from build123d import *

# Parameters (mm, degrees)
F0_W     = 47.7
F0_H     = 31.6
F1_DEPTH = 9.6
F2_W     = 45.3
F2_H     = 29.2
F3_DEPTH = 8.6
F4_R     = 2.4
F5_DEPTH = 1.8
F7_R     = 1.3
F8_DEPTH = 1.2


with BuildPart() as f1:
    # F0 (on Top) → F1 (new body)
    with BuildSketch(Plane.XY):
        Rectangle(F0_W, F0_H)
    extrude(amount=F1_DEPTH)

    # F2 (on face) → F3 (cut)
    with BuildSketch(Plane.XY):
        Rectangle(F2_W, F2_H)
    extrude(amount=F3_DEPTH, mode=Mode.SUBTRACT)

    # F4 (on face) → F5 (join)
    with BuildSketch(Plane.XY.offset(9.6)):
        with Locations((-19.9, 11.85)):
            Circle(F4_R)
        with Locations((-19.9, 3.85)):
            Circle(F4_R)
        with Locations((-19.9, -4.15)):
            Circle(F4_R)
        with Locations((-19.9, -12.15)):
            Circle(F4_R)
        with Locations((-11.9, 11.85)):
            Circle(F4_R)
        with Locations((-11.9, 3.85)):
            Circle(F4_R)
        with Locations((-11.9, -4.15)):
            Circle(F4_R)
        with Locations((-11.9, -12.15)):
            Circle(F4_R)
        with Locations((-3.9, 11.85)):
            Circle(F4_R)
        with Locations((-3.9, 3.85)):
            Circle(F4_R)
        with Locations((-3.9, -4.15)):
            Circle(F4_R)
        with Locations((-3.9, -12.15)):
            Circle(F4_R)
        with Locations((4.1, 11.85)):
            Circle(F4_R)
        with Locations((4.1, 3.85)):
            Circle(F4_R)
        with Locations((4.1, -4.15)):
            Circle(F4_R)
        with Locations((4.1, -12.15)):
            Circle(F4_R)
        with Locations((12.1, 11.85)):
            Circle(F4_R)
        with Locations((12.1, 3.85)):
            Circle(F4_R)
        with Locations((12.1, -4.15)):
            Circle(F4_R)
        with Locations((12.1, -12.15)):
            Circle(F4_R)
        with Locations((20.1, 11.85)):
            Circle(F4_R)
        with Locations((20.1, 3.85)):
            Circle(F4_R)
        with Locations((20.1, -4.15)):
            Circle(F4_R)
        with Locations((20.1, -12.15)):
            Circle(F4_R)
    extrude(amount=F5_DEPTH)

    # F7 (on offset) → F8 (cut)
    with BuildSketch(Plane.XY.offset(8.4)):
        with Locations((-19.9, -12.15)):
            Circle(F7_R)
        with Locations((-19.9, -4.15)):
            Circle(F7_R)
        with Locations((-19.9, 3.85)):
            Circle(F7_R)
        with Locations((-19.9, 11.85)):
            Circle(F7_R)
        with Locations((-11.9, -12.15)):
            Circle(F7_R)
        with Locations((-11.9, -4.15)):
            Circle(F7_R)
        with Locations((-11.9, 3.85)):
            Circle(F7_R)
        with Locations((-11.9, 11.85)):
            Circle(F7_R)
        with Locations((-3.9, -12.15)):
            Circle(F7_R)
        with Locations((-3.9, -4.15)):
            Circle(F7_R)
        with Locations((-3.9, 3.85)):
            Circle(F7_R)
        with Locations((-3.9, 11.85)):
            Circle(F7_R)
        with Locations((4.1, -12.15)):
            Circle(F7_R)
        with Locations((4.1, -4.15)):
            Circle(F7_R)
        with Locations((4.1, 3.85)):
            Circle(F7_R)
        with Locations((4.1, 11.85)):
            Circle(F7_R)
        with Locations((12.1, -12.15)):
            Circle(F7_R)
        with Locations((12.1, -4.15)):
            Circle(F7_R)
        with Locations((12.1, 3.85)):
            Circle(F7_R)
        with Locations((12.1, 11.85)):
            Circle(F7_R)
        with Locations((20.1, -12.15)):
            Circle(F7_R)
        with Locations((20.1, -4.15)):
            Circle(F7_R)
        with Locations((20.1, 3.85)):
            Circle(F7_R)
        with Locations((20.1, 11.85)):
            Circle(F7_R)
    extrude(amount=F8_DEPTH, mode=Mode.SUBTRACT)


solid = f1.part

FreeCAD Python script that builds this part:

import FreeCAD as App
import Part
import Sketcher

V = App.Vector

doc = App.newDocument("Part")
body = doc.addObject("PartDesign::Body", "Body")

sketch1 = doc.addObject("Sketcher::SketchObject", "Sketch")
body.addObject(sketch1)
sketch1.AttachmentSupport = (doc.XY_Plane, [""])
sketch1.MapMode = "FlatFace"
sketch1.addGeometry([
    Part.LineSegment(V(-24, 16, 0), V(-24, -16, 0)),
    Part.LineSegment(V(-24, -16, 0), V(24, -16, 0)),
    Part.LineSegment(V(24, -16, 0), V(24, 16, 0)),
    Part.LineSegment(V(24, 16, 0), V(-24, 16, 0)),
], False)
sketch1.addConstraint([
    Sketcher.Constraint("Coincident", 0, 2, 1, 1),
    Sketcher.Constraint("Coincident", 1, 2, 2, 1),
    Sketcher.Constraint("Coincident", 2, 2, 3, 1),
    Sketcher.Constraint("Coincident", 3, 2, 0, 1),
    Sketcher.Constraint("Vertical", 0),
    Sketcher.Constraint("Horizontal", 1),
    Sketcher.Constraint("Vertical", 2),
    Sketcher.Constraint("Horizontal", 3),
    Sketcher.Constraint("Symmetric", 0, 2, 2, 2, -1, 1),
    Sketcher.Constraint("DistanceX", 1, 1, 1, 2, 47.7),
    Sketcher.Constraint("DistanceY", 0, 2, 0, 1, 31.6),
])
pad1 = doc.addObject("PartDesign::Pad", "Pad")
body.addObject(pad1)
pad1.Profile = sketch1
pad1.Length = 9.6

sketch2 = doc.addObject("Sketcher::SketchObject", "Sketch001")
body.addObject(sketch2)
sketch2.AttachmentSupport = (doc.XY_Plane, [""])
sketch2.MapMode = "FlatFace"
sketch2.addGeometry([
    Part.LineSegment(V(-23, 15, 0), V(-23, -15, 0)),
    Part.LineSegment(V(-23, -15, 0), V(23, -15, 0)),
    Part.LineSegment(V(23, -15, 0), V(23, 15, 0)),
    Part.LineSegment(V(23, 15, 0), V(-23, 15, 0)),
], False)
sketch2.addConstraint([
    Sketcher.Constraint("Coincident", 0, 2, 1, 1),
    Sketcher.Constraint("Coincident", 1, 2, 2, 1),
    Sketcher.Constraint("Coincident", 2, 2, 3, 1),
    Sketcher.Constraint("Coincident", 3, 2, 0, 1),
    Sketcher.Constraint("Vertical", 0),
    Sketcher.Constraint("Horizontal", 1),
    Sketcher.Constraint("Vertical", 2),
    Sketcher.Constraint("Horizontal", 3),
    Sketcher.Constraint("Symmetric", 0, 2, 2, 2, -1, 1),
    Sketcher.Constraint("DistanceX", 1, 1, 1, 2, 45.3),
    Sketcher.Constraint("DistanceY", 0, 2, 0, 1, 29.2),
])
pocket1 = doc.addObject("PartDesign::Pocket", "Pocket")
body.addObject(pocket1)
pocket1.Profile = sketch2
pocket1.Length = 8.6
pocket1.Reversed = True

sketch3 = doc.addObject("Sketcher::SketchObject", "Sketch002")
body.addObject(sketch3)
sketch3.AttachmentSupport = (doc.XY_Plane, [""])
sketch3.MapMode = "FlatFace"
sketch3.AttachmentOffset = App.Placement(V(0, 0, 9.6), App.Rotation())
sketch3.addGeometry([
    Part.Circle(V(-19.9, 11.8, 0), V(0, 0, 1), 2.4),
    Part.Circle(V(-19.9, 3.9, 0), V(0, 0, 1), 2.4),
    Part.Circle(V(-19.9, -4.2, 0), V(0, 0, 1), 2.4),
    Part.Circle(V(-19.9, -12.2, 0), V(0, 0, 1), 2.4),
    Part.Circle(V(-11.9, 11.8, 0), V(0, 0, 1), 2.4),
    Part.Circle(V(-11.9, 3.9, 0), V(0, 0, 1), 2.4),
    Part.Circle(V(-11.9, -4.2, 0), V(0, 0, 1), 2.4),
    Part.Circle(V(-11.9, -12.2, 0), V(0, 0, 1), 2.4),
    Part.Circle(V(-3.9, 11.8, 0), V(0, 0, 1), 2.4),
    Part.Circle(V(-3.9, 3.9, 0), V(0, 0, 1), 2.4),
    Part.Circle(V(-3.9, -4.2, 0), V(0, 0, 1), 2.4),
    Part.Circle(V(-3.9, -12.2, 0), V(0, 0, 1), 2.4),
    Part.Circle(V(4.1, 11.8, 0), V(0, 0, 1), 2.4),
    Part.Circle(V(4.1, 3.9, 0), V(0, 0, 1), 2.4),
    Part.Circle(V(4.1, -4.2, 0), V(0, 0, 1), 2.4),
    Part.Circle(V(4.1, -12.2, 0), V(0, 0, 1), 2.4),
    Part.Circle(V(12.1, 11.8, 0), V(0, 0, 1), 2.4),
    Part.Circle(V(12.1, 3.9, 0), V(0, 0, 1), 2.4),
    Part.Circle(V(12.1, -4.2, 0), V(0, 0, 1), 2.4),
    Part.Circle(V(12.1, -12.2, 0), V(0, 0, 1), 2.4),
    Part.Circle(V(20.1, 11.8, 0), V(0, 0, 1), 2.4),
    Part.Circle(V(20.1, 3.9, 0), V(0, 0, 1), 2.4),
    Part.Circle(V(20.1, -4.2, 0), V(0, 0, 1), 2.4),
    Part.Circle(V(20.1, -12.2, 0), V(0, 0, 1), 2.4),
], False)
sketch3.addConstraint([
    Sketcher.Constraint("Equal", 0, 1),
    Sketcher.Constraint("Equal", 1, 2),
    Sketcher.Constraint("Equal", 2, 3),
    Sketcher.Constraint("Equal", 3, 4),
    Sketcher.Constraint("Equal", 4, 5),
    Sketcher.Constraint("Equal", 5, 6),
    Sketcher.Constraint("Equal", 6, 7),
    Sketcher.Constraint("Equal", 7, 8),
    Sketcher.Constraint("Equal", 8, 9),
    Sketcher.Constraint("Equal", 9, 10),
    Sketcher.Constraint("Equal", 10, 11),
    Sketcher.Constraint("Equal", 11, 12),
    Sketcher.Constraint("Equal", 12, 13),
    Sketcher.Constraint("Equal", 13, 14),
    Sketcher.Constraint("Equal", 14, 15),
    Sketcher.Constraint("Equal", 15, 16),
    Sketcher.Constraint("Equal", 16, 17),
    Sketcher.Constraint("Equal", 17, 18),
    Sketcher.Constraint("Equal", 18, 19),
    Sketcher.Constraint("Equal", 19, 20),
    Sketcher.Constraint("Equal", 20, 21),
    Sketcher.Constraint("Equal", 21, 22),
    Sketcher.Constraint("Equal", 22, 23),
    Sketcher.Constraint("Horizontal", 0, 3, 4, 3),
    Sketcher.Constraint("Horizontal", 1, 3, 5, 3),
    Sketcher.Constraint("Horizontal", 2, 3, 6, 3),
    Sketcher.Constraint("Horizontal", 3, 3, 7, 3),
    Sketcher.Constraint("Horizontal", 4, 3, 8, 3),
    Sketcher.Constraint("Horizontal", 5, 3, 9, 3),
    Sketcher.Constraint("Horizontal", 6, 3, 10, 3),
    Sketcher.Constraint("Horizontal", 7, 3, 11, 3),
    Sketcher.Constraint("Horizontal", 8, 3, 12, 3),
    Sketcher.Constraint("Horizontal", 9, 3, 13, 3),
    Sketcher.Constraint("Horizontal", 10, 3, 14, 3),
    Sketcher.Constraint("Horizontal", 11, 3, 15, 3),
    Sketcher.Constraint("Horizontal", 12, 3, 16, 3),
    Sketcher.Constraint("Horizontal", 13, 3, 17, 3),
    Sketcher.Constraint("Horizontal", 14, 3, 18, 3),
    Sketcher.Constraint("Horizontal", 15, 3, 19, 3),
    Sketcher.Constraint("Horizontal", 16, 3, 20, 3),
    Sketcher.Constraint("Horizontal", 17, 3, 21, 3),
    Sketcher.Constraint("Horizontal", 18, 3, 22, 3),
    Sketcher.Constraint("Horizontal", 19, 3, 23, 3),
    Sketcher.Constraint("Vertical", 0, 3, 1, 3),
    Sketcher.Constraint("Vertical", 1, 3, 2, 3),
    Sketcher.Constraint("Vertical", 2, 3, 3, 3),
    Sketcher.Constraint("Vertical", 4, 3, 5, 3),
    Sketcher.Constraint("Vertical", 5, 3, 6, 3),
    Sketcher.Constraint("Vertical", 6, 3, 7, 3),
    Sketcher.Constraint("Vertical", 8, 3, 9, 3),
    Sketcher.Constraint("Vertical", 9, 3, 10, 3),
    Sketcher.Constraint("Vertical", 10, 3, 11, 3),
    Sketcher.Constraint("Vertical", 12, 3, 13, 3),
    Sketcher.Constraint("Vertical", 13, 3, 14, 3),
    Sketcher.Constraint("Vertical", 14, 3, 15, 3),
    Sketcher.Constraint("Vertical", 16, 3, 17, 3),
    Sketcher.Constraint("Vertical", 17, 3, 18, 3),
    Sketcher.Constraint("Vertical", 18, 3, 19, 3),
    Sketcher.Constraint("Vertical", 20, 3, 21, 3),
    Sketcher.Constraint("Vertical", 21, 3, 22, 3),
    Sketcher.Constraint("Vertical", 22, 3, 23, 3),
    Sketcher.Constraint("Diameter", 0, 4.8),
    Sketcher.Constraint("DistanceY", 1, 3, 0, 3, 8.0),
    Sketcher.Constraint("DistanceY", 2, 3, 1, 3, 8.0),
    Sketcher.Constraint("DistanceY", 3, 3, 2, 3, 8.0),
    Sketcher.Constraint("DistanceX", 0, 3, 4, 3, 8.0),
    Sketcher.Constraint("DistanceX", 4, 3, 8, 3, 8.0),
    Sketcher.Constraint("DistanceX", 8, 3, 12, 3, 8.0),
    Sketcher.Constraint("DistanceX", 12, 3, 16, 3, 8.0),
    Sketcher.Constraint("DistanceX", 16, 3, 20, 3, 8.0),
    Sketcher.Constraint("DistanceX", 0, 3, -1, 1, 19.9),
    Sketcher.Constraint("DistanceY", -1, 1, 0, 3, 11.85),
])
pad2 = doc.addObject("PartDesign::Pad", "Pad001")
body.addObject(pad2)
pad2.Profile = sketch3
pad2.Length = 1.8

sketch4 = doc.addObject("Sketcher::SketchObject", "Sketch003")
body.addObject(sketch4)
sketch4.AttachmentSupport = (doc.XY_Plane, [""])
sketch4.MapMode = "FlatFace"
sketch4.AttachmentOffset = App.Placement(V(0, 0, 8.4), App.Rotation())
sketch4.addGeometry([
    Part.Circle(V(-19.9, -12.2, 0), V(0, 0, 1), 1.3),
    Part.Circle(V(-19.9, -4.2, 0), V(0, 0, 1), 1.3),
    Part.Circle(V(-19.9, 3.9, 0), V(0, 0, 1), 1.3),
    Part.Circle(V(-19.9, 11.8, 0), V(0, 0, 1), 1.3),
    Part.Circle(V(-11.9, -12.2, 0), V(0, 0, 1), 1.3),
    Part.Circle(V(-11.9, -4.2, 0), V(0, 0, 1), 1.3),
    Part.Circle(V(-11.9, 3.9, 0), V(0, 0, 1), 1.3),
    Part.Circle(V(-11.9, 11.8, 0), V(0, 0, 1), 1.3),
    Part.Circle(V(-3.9, -12.2, 0), V(0, 0, 1), 1.3),
    Part.Circle(V(-3.9, -4.2, 0), V(0, 0, 1), 1.3),
    Part.Circle(V(-3.9, 3.9, 0), V(0, 0, 1), 1.3),
    Part.Circle(V(-3.9, 11.8, 0), V(0, 0, 1), 1.3),
    Part.Circle(V(4.1, -12.2, 0), V(0, 0, 1), 1.3),
    Part.Circle(V(4.1, -4.2, 0), V(0, 0, 1), 1.3),
    Part.Circle(V(4.1, 3.9, 0), V(0, 0, 1), 1.3),
    Part.Circle(V(4.1, 11.8, 0), V(0, 0, 1), 1.3),
    Part.Circle(V(12.1, -12.2, 0), V(0, 0, 1), 1.3),
    Part.Circle(V(12.1, -4.2, 0), V(0, 0, 1), 1.3),
    Part.Circle(V(12.1, 3.9, 0), V(0, 0, 1), 1.3),
    Part.Circle(V(12.1, 11.8, 0), V(0, 0, 1), 1.3),
    Part.Circle(V(20.1, -12.2, 0), V(0, 0, 1), 1.3),
    Part.Circle(V(20.1, -4.2, 0), V(0, 0, 1), 1.3),
    Part.Circle(V(20.1, 3.9, 0), V(0, 0, 1), 1.3),
    Part.Circle(V(20.1, 11.8, 0), V(0, 0, 1), 1.3),
], False)
sketch4.addConstraint([
    Sketcher.Constraint("Equal", 0, 1),
    Sketcher.Constraint("Equal", 1, 2),
    Sketcher.Constraint("Equal", 2, 3),
    Sketcher.Constraint("Equal", 3, 4),
    Sketcher.Constraint("Equal", 4, 5),
    Sketcher.Constraint("Equal", 5, 6),
    Sketcher.Constraint("Equal", 6, 7),
    Sketcher.Constraint("Equal", 7, 8),
    Sketcher.Constraint("Equal", 8, 9),
    Sketcher.Constraint("Equal", 9, 10),
    Sketcher.Constraint("Equal", 10, 11),
    Sketcher.Constraint("Equal", 11, 12),
    Sketcher.Constraint("Equal", 12, 13),
    Sketcher.Constraint("Equal", 13, 14),
    Sketcher.Constraint("Equal", 14, 15),
    Sketcher.Constraint("Equal", 15, 16),
    Sketcher.Constraint("Equal", 16, 17),
    Sketcher.Constraint("Equal", 17, 18),
    Sketcher.Constraint("Equal", 18, 19),
    Sketcher.Constraint("Equal", 19, 20),
    Sketcher.Constraint("Equal", 20, 21),
    Sketcher.Constraint("Equal", 21, 22),
    Sketcher.Constraint("Equal", 22, 23),
    Sketcher.Constraint("Horizontal", 0, 3, 4, 3),
    Sketcher.Constraint("Horizontal", 1, 3, 5, 3),
    Sketcher.Constraint("Horizontal", 2, 3, 6, 3),
    Sketcher.Constraint("Horizontal", 3, 3, 7, 3),
    Sketcher.Constraint("Horizontal", 4, 3, 8, 3),
    Sketcher.Constraint("Horizontal", 5, 3, 9, 3),
    Sketcher.Constraint("Horizontal", 6, 3, 10, 3),
    Sketcher.Constraint("Horizontal", 7, 3, 11, 3),
    Sketcher.Constraint("Horizontal", 8, 3, 12, 3),
    Sketcher.Constraint("Horizontal", 9, 3, 13, 3),
    Sketcher.Constraint("Horizontal", 10, 3, 14, 3),
    Sketcher.Constraint("Horizontal", 11, 3, 15, 3),
    Sketcher.Constraint("Horizontal", 12, 3, 16, 3),
    Sketcher.Constraint("Horizontal", 13, 3, 17, 3),
    Sketcher.Constraint("Horizontal", 14, 3, 18, 3),
    Sketcher.Constraint("Horizontal", 15, 3, 19, 3),
    Sketcher.Constraint("Horizontal", 16, 3, 20, 3),
    Sketcher.Constraint("Horizontal", 17, 3, 21, 3),
    Sketcher.Constraint("Horizontal", 18, 3, 22, 3),
    Sketcher.Constraint("Horizontal", 19, 3, 23, 3),
    Sketcher.Constraint("Vertical", 0, 3, 1, 3),
    Sketcher.Constraint("Vertical", 1, 3, 2, 3),
    Sketcher.Constraint("Vertical", 2, 3, 3, 3),
    Sketcher.Constraint("Vertical", 4, 3, 5, 3),
    Sketcher.Constraint("Vertical", 5, 3, 6, 3),
    Sketcher.Constraint("Vertical", 6, 3, 7, 3),
    Sketcher.Constraint("Vertical", 8, 3, 9, 3),
    Sketcher.Constraint("Vertical", 9, 3, 10, 3),
    Sketcher.Constraint("Vertical", 10, 3, 11, 3),
    Sketcher.Constraint("Vertical", 12, 3, 13, 3),
    Sketcher.Constraint("Vertical", 13, 3, 14, 3),
    Sketcher.Constraint("Vertical", 14, 3, 15, 3),
    Sketcher.Constraint("Vertical", 16, 3, 17, 3),
    Sketcher.Constraint("Vertical", 17, 3, 18, 3),
    Sketcher.Constraint("Vertical", 18, 3, 19, 3),
    Sketcher.Constraint("Vertical", 20, 3, 21, 3),
    Sketcher.Constraint("Vertical", 21, 3, 22, 3),
    Sketcher.Constraint("Vertical", 22, 3, 23, 3),
    Sketcher.Constraint("Diameter", 0, 2.6),
    Sketcher.Constraint("DistanceY", 0, 3, 1, 3, 8.0),
    Sketcher.Constraint("DistanceY", 1, 3, 2, 3, 8.0),
    Sketcher.Constraint("DistanceY", 2, 3, 3, 3, 8.0),
    Sketcher.Constraint("DistanceX", 0, 3, 4, 3, 8.0),
    Sketcher.Constraint("DistanceX", 4, 3, 8, 3, 8.0),
    Sketcher.Constraint("DistanceX", 8, 3, 12, 3, 8.0),
    Sketcher.Constraint("DistanceX", 12, 3, 16, 3, 8.0),
    Sketcher.Constraint("DistanceX", 16, 3, 20, 3, 8.0),
    Sketcher.Constraint("DistanceX", 0, 3, -1, 1, 19.9),
    Sketcher.Constraint("DistanceY", 0, 3, -1, 1, 12.15),
])
pocket2 = doc.addObject("PartDesign::Pocket", "Pocket001")
body.addObject(pocket2)
pocket2.Profile = sketch4
pocket2.Length = 1.2
pocket2.Reversed = True

doc.recompute()
